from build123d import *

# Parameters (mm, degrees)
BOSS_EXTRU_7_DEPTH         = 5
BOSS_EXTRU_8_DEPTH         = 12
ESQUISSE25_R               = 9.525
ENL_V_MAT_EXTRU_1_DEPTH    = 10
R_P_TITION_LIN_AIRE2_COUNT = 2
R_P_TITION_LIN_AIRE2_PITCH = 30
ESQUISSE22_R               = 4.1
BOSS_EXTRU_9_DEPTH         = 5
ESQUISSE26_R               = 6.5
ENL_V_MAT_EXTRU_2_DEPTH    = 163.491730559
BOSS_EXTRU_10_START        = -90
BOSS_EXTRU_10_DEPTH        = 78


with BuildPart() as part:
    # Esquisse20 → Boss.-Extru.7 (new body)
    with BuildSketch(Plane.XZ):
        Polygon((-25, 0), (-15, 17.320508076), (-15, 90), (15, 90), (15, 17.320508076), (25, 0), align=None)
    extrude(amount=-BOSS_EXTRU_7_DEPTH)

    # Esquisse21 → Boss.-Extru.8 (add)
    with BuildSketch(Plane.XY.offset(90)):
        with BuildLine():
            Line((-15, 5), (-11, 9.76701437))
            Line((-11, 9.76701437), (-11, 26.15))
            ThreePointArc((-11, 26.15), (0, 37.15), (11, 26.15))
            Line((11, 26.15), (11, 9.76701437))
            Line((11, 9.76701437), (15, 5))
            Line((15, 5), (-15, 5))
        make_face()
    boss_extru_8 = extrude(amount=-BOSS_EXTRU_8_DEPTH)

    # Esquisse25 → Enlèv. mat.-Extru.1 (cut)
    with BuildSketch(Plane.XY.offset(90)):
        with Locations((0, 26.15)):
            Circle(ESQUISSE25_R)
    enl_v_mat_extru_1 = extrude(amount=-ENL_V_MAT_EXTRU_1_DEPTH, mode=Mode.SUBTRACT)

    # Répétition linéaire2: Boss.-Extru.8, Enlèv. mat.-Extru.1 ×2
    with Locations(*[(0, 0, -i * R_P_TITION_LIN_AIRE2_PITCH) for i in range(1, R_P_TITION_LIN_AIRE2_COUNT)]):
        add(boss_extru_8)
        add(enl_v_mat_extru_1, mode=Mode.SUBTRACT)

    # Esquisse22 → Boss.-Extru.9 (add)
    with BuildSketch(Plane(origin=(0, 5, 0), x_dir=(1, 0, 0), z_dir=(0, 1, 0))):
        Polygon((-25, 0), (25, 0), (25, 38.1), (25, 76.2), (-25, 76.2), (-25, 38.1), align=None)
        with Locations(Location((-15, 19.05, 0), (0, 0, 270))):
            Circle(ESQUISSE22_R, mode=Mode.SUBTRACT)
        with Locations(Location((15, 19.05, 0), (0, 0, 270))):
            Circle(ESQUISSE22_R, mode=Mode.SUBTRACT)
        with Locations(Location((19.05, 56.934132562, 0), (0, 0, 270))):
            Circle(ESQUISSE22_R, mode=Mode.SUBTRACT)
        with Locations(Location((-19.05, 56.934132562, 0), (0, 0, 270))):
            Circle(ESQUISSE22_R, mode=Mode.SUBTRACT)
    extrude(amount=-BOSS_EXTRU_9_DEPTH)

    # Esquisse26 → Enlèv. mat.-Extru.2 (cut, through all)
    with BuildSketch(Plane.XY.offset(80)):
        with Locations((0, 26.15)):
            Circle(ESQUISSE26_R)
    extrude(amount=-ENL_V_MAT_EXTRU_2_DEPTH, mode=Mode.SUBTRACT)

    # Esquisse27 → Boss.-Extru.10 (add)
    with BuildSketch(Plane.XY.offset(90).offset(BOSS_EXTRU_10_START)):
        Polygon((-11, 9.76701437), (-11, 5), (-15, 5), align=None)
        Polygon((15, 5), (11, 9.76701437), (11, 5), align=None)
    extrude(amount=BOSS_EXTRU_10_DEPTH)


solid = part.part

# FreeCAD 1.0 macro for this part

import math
import FreeCAD as App
import Part
import Sketcher
Q = App.Units.Quantity


def add_polygon(sketch, points):
    """Adds a closed chain of lines whose ends are joined by coincident constraints."""
    first, n = sketch.GeometryCount, len(points)
    for a, b in zip(points, points[1:] + points[:1]):
        sketch.addGeometry(Part.LineSegment(App.Vector(*a, 0), App.Vector(*b, 0)), False)
    for i in range(n):
        sketch.addConstraint(Sketcher.Constraint("Coincident", first + i, 2, first + (i + 1) % n, 1))

doc = App.newDocument("Part")
body = doc.addObject("PartDesign::Body", "Body")

sketch1 = body.newObject("Sketcher::SketchObject", "Sketch")
sketch1.AttachmentSupport = (doc.getObject("XZ_Plane"), [""])
sketch1.MapMode = "FlatFace"
add_polygon(sketch1, [(-15, 17), (-25, 0), (25, 0), (15, 17), (15, 90), (-15, 90)])
sketch1.addConstraint([
    Sketcher.Constraint("Horizontal", 1),
    Sketcher.Constraint("Vertical", 3),
    Sketcher.Constraint("Horizontal", 4),
    Sketcher.Constraint("Vertical", 5),
    Sketcher.Constraint("Symmetric", 0, 2, 1, 2, -1, 1),
    Sketcher.Constraint("Symmetric", 2, 2, 5, 2, -2),
    Sketcher.Constraint("DistanceX", 1, 1, 1, 2, Q("50 mm")),
    Sketcher.Constraint("DistanceX", 4, 2, 4, 1, Q("30 mm")),
    Sketcher.Constraint("Angle", 0, Q("-120 deg")),
    Sketcher.Constraint("DistanceY", -1, 1, 3, 2, Q("90 mm")),
])
pad1 = body.newObject("PartDesign::Pad", "Pad")
pad1.Profile = sketch1
pad1.Length = 5
pad1.Reversed = True

sketch2 = body.newObject("Sketcher::SketchObject", "Sketch001")
sketch2.AttachmentSupport = (doc.getObject("XY_Plane"), [""])
sketch2.MapMode = "FlatFace"
sketch2.AttachmentOffset = App.Placement(App.Vector(0, 0, 90), App.Rotation())
sketch2.addGeometry([
    Part.LineSegment(App.Vector(-11, 10, 0), App.Vector(-15, 5, 0)),
    Part.LineSegment(App.Vector(-15, 5, 0), App.Vector(15, 5, 0)),
    Part.LineSegment(App.Vector(15, 5, 0), App.Vector(11, 10, 0)),
    Part.LineSegment(App.Vector(11, 10, 0), App.Vector(11, 26, 0)),
    Part.ArcOfCircle(Part.Circle(App.Vector(0, 26, 0), App.Vector(0, 0, 1), 11), math.radians(0), math.radians(180)),
    Part.LineSegment(App.Vector(-11, 26, 0), App.Vector(-11, 10, 0)),
], False)
sketch2.addConstraint([
    Sketcher.Constraint("Coincident", 0, 2, 1, 1),
    Sketcher.Constraint("Coincident", 1, 2, 2, 1),
    Sketcher.Constraint("Coincident", 2, 2, 3, 1),
    Sketcher.Constraint("Tangent", 3, 2, 4, 1),
    Sketcher.Constraint("Tangent", 4, 2, 5, 1),
    Sketcher.Constraint("Coincident", 5, 2, 0, 1),
    Sketcher.Constraint("Horizontal", 1),
    Sketcher.Constraint("Vertical", 3),
    Sketcher.Constraint("Vertical", 5),
    Sketcher.Constraint("Symmetric", 2, 2, 5, 2, -2),
    Sketcher.Constraint("Equal", 0, 2),
    Sketcher.Constraint("Radius", 4, Q("11 mm")),
    Sketcher.Constraint("DistanceX", 1, 1, 1, 2, Q("30 mm")),
    Sketcher.Constraint("Angle", 0, Q("-130 deg")),
    Sketcher.Constraint("DistanceY", -1, 1, 0, 2, Q("5 mm")),
    Sketcher.Constraint("DistanceY", -1, 1, 4, 3, Q("26.15 mm")),
])
pad2 = body.newObject("PartDesign::Pad", "Pad001")
pad2.Profile = sketch2
pad2.Length = 12
pad2.Reversed = True

sketch3 = body.newObject("Sketcher::SketchObject", "Sketch002")
sketch3.AttachmentSupport = (doc.getObject("XY_Plane"), [""])
sketch3.MapMode = "FlatFace"
sketch3.AttachmentOffset = App.Placement(App.Vector(0, 0, 90), App.Rotation())
sketch3.addGeometry(Part.Circle(App.Vector(0, 26, 0), App.Vector(0, 0, 1), 10), False)
sketch3.addConstraint([
    Sketcher.Constraint("PointOnObject", 0, 3, -2),
    Sketcher.Constraint("Diameter", 0, Q("19.05 mm")),
    Sketcher.Constraint("DistanceY", -1, 1, 0, 3, Q("26.15 mm")),
])
pocket1 = body.newObject("PartDesign::Pocket", "Pocket")
pocket1.Profile = sketch3
pocket1.Length = 10
doc.recompute()

linearpattern = body.newObject("PartDesign::LinearPattern", "LinearPattern")
linearpattern.Originals = [pad2, pocket1]
linearpattern.Direction = (doc.getObject("Z_Axis"), [""])
linearpattern.Mode = "offset"
linearpattern.Offset = 30
linearpattern.Occurrences = 2
linearpattern.Reversed = True
body.Tip = linearpattern

sketch4 = body.newObject("Sketcher::SketchObject", "Sketch003")
sketch4.AttachmentSupport = (doc.getObject("XZ_Plane"), [""])
sketch4.MapMode = "FlatFace"
sketch4.AttachmentOffset = App.Placement(App.Vector(0, 0, -5), App.Rotation())
add_polygon(sketch4, [(-25, 0), (25, 0), (25, -76.2), (-25, -76.2)])
sketch4.addGeometry(Part.Circle(App.Vector(-15, -19.1, 0), App.Vector(0, 0, 1), 4.1), False)
sketch4.addGeometry(Part.Circle(App.Vector(15, -19.1, 0), App.Vector(0, 0, 1), 4.1), False)
sketch4.addGeometry(Part.Circle(App.Vector(-19.1, -56.9, 0), App.Vector(0, 0, 1), 4.1), False)
sketch4.addGeometry(Part.Circle(App.Vector(19.1, -56.9, 0), App.Vector(0, 0, 1), 4.1), False)
sketch4.addConstraint([
    Sketcher.Constraint("Horizontal", 0),
    Sketcher.Constraint("Vertical", 1),
    Sketcher.Constraint("Horizontal", 2),
    Sketcher.Constraint("Vertical", 3),
    Sketcher.Constraint("Equal", 4, 5),
    Sketcher.Constraint("Equal", 5, 6),
    Sketcher.Constraint("Equal", 6, 7),
    Sketcher.Constraint("Symmetric", 0, 2, 3, 2, -1, 1),
    Sketcher.Constraint("Symmetric", 4, 3, 5, 3, -2),
    Sketcher.Constraint("Symmetric", 6, 3, 7, 3, -2),
    Sketcher.Constraint("Diameter", 4, Q("8.2 mm")),
    Sketcher.Constraint("DistanceX", 0, 1, 0, 2, Q("50 mm")),
    Sketcher.Constraint("DistanceY", 1, 2, 1, 1, Q("76.2 mm")),
    Sketcher.Constraint("DistanceX", 4, 3, -1, 1, Q("15 mm")),
    Sketcher.Constraint("DistanceX", 6, 3, 7, 3, Q("38.1 mm")),
    Sketcher.Constraint("DistanceY", 4, 3, -1, 1, Q("19.05 mm")),
    Sketcher.Constraint("DistanceY", 6, 3, -1, 1, Q("56.934133 mm")),
])
pad3 = body.newObject("PartDesign::Pad", "Pad002")
pad3.Profile = sketch4
pad3.Length = 5

sketch5 = body.newObject("Sketcher::SketchObject", "Sketch004")
sketch5.AttachmentSupport = (doc.getObject("XY_Plane"), [""])
sketch5.MapMode = "FlatFace"
sketch5.AttachmentOffset = App.Placement(App.Vector(0, 0, 80), App.Rotation())
sketch5.addGeometry(Part.Circle(App.Vector(0, 26, 0), App.Vector(0, 0, 1), 6), False)
sketch5.addConstraint([
    Sketcher.Constraint("PointOnObject", 0, 3, -2),
    Sketcher.Constraint("Diameter", 0, Q("13 mm")),
    Sketcher.Constraint("DistanceY", -1, 1, 0, 3, Q("26.15 mm")),
])
pocket2 = body.newObject("PartDesign::Pocket", "Pocket001")
pocket2.Profile = sketch5
pocket2.Type = "ThroughAll"

sketch6 = body.newObject("Sketcher::SketchObject", "Sketch005")
sketch6.AttachmentSupport = (doc.getObject("XY_Plane"), [""])
sketch6.MapMode = "FlatFace"
add_polygon(sketch6, [(-11, 5), (-11, 9.8), (-15, 5)])
add_polygon(sketch6, [(15, 5), (11, 9.8), (11, 5)])
sketch6.addConstraint([
    Sketcher.Constraint("Vertical", 0),
    Sketcher.Constraint("Horizontal", 2),
    Sketcher.Constraint("Vertical", 4),
    Sketcher.Constraint("Horizontal", 5),
    Sketcher.Constraint("Symmetric", 0, 2, 3, 2, -2),
    Sketcher.Constraint("Symmetric", 1, 2, 5, 2, -2),
    Sketcher.Constraint("DistanceX", 2, 1, 2, 2, Q("4 mm")),
    Sketcher.Constraint("Angle", 1, Q("-130 deg")),
    Sketcher.Constraint("DistanceX", 0, 2, -1, 1, Q("11 mm")),
    Sketcher.Constraint("DistanceY", -1, 1, 1, 2, Q("5 mm")),
])
pad4 = body.newObject("PartDesign::Pad", "Pad003")
pad4.Profile = sketch6
pad4.Length = 78

doc.recompute()
